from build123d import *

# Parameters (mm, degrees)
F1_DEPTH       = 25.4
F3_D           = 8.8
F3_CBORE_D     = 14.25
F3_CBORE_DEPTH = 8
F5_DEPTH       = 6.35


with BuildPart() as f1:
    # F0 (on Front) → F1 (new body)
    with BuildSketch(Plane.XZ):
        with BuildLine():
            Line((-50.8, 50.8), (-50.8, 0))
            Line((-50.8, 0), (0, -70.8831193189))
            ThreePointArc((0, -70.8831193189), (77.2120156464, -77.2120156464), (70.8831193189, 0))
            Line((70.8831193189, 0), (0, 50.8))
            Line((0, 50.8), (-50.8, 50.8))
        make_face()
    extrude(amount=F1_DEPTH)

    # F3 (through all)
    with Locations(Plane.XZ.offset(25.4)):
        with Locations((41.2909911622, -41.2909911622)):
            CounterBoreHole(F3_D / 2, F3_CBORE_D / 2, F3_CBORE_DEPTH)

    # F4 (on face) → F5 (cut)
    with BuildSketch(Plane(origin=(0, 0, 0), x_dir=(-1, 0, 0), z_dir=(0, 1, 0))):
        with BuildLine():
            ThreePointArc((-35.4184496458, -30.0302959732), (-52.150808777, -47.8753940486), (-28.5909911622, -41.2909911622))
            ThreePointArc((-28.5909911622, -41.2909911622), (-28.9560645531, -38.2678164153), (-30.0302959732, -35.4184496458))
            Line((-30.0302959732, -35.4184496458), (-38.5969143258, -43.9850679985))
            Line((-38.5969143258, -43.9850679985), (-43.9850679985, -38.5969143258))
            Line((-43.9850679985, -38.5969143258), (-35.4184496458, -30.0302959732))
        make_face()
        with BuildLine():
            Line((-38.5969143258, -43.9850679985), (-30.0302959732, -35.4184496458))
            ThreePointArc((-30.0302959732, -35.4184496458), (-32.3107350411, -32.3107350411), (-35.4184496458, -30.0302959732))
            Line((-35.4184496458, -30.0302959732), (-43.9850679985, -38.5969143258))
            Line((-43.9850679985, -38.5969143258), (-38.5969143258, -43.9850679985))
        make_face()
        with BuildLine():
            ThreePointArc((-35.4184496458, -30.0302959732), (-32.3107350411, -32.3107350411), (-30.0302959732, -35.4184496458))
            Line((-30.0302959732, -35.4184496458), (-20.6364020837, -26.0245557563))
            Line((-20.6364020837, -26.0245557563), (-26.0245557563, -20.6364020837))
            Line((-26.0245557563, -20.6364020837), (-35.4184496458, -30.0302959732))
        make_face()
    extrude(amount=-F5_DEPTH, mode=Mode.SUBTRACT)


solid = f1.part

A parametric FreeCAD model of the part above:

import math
import FreeCAD as App
import Part
import Sketcher
Q = App.Units.Quantity

doc = App.newDocument("Part")
params = doc.addObject("Spreadsheet::Sheet", "Params")
for row, (alias, value) in enumerate([
    ("sketch1_radius", "2 in"),
    ("sketch1_width", "2 in"),
    ("pad1_length", "1 in"),
    ("hole_diameter", "8.8 mm"),
    ("hole_cbore_diameter", "14.25 mm"),
    ("hole_cbore_depth", "8 mm"),
    ("sketch3_radius", "0.5 in"),
    ("sketch3_length", "0.3 in"),
    ("pocket1_length", "0.25 in"),
], start=1):
    params.set(f"A{row}", alias)
    params.set(f"B{row}", "=" + value)
    params.setAlias(f"B{row}", alias)

body = doc.addObject("PartDesign::Body", "Body")

# Sketch on XZ plane
sketch1 = body.newObject("Sketcher::SketchObject", "Sketch")
sketch1.AttachmentSupport = (doc.getObject("XZ_Plane"), [""])
sketch1.MapMode = "FlatFace"
sketch1.addGeometry([
    Part.LineSegment(App.Vector(-50.8, 50.8, 0), App.Vector(-50.8, 0, 0)),  # 0
    Part.LineSegment(App.Vector(-50.8, 0, 0), App.Vector(0, -70.883119, 0)),  # 1
    Part.ArcOfCircle(Part.Circle(App.Vector(41.290991, -41.290991, 0), App.Vector(0, 0, 1), 50.8), math.radians(-144.371862), math.radians(54.371862)),  # 2
    Part.LineSegment(App.Vector(70.883119, 0, 0), App.Vector(0, 50.8, 0)),  # 3
    Part.LineSegment(App.Vector(0, 50.8, 0), App.Vector(-50.8, 50.8, 0)),  # 4
], False)
sketch1.addConstraint([
    Sketcher.Constraint("Coincident", 0, 2, 1, 1),
    Sketcher.Constraint("Tangent", 1, 2, 2, 1),
    Sketcher.Constraint("Tangent", 2, 2, 3, 1),
    Sketcher.Constraint("Coincident", 3, 2, 4, 1),
    Sketcher.Constraint("Coincident", 4, 2, 0, 1),
    Sketcher.Constraint("Vertical", 0),
    Sketcher.Constraint("Horizontal", 4),
    Sketcher.Constraint("PointOnObject", 0, 2, -1),
    Sketcher.Constraint("PointOnObject", 1, 2, -2),
    Sketcher.Constraint("PointOnObject", 2, 2, -1),
    Sketcher.Constraint("PointOnObject", 3, 2, -2),
    Sketcher.Constraint("Equal", 4, 0),
    Sketcher.Constraint("Radius", 2, Q("2 in")),
    Sketcher.Constraint("DistanceX", 4, 2, 4, 1, Q("2 in")),
])
sketch1.setExpression("Constraints[12]", "Params.sketch1_radius")
sketch1.setExpression("Constraints[13]", "Params.sketch1_width")
pad1 = body.newObject("PartDesign::Pad", "Pad")
pad1.Profile = sketch1
pad1.setExpression("Length", "Params.pad1_length")

# Sketch on XZ plane
sketch2 = body.newObject("Sketcher::SketchObject", "Sketch001")
sketch2.AttachmentSupport = (doc.getObject("XZ_Plane"), [""])
sketch2.MapMode = "FlatFace"
sketch2.AttachmentOffset = App.Placement(App.Vector(0, 0, 1 * 25.4), App.Rotation())
sketch2.addGeometry(Part.Circle(App.Vector(41.290991, -41.290991, 0), App.Vector(0, 0, 1), 4.4), False)
sketch2.addConstraint([
    Sketcher.Constraint("Diameter", 0, 8.8),
    Sketcher.Constraint("DistanceX", -1, 1, 0, 3, 41.290991),
    Sketcher.Constraint("DistanceY", 0, 3, -1, 1, 41.290991),
])
doc.recompute()
hole = body.newObject("PartDesign::Hole", "Hole")
hole.Profile = sketch2
hole.ThreadType = "None"
hole.setExpression("Diameter", "Params.hole_diameter")
hole.DepthType = "ThroughAll"
hole.HoleCutType = "Counterbore"
hole.setExpression("HoleCutDiameter", "Params.hole_cbore_diameter")
hole.setExpression("HoleCutDepth", "Params.hole_cbore_depth")

# Sketch on XZ plane
sketch3 = body.newObject("Sketcher::SketchObject", "Sketch002")
sketch3.AttachmentSupport = (doc.getObject("XZ_Plane"), [""])
sketch3.MapMode = "FlatFace"
sketch3.addGeometry([
    Part.ArcOfCircle(Part.Circle(App.Vector(41.290991, -41.290991, 0), App.Vector(0, 0, 1), 12.7), math.radians(180), math.radians(477.542397)),  # 0
    Part.ArcOfCircle(Part.Circle(App.Vector(41.290991, -41.290991, 0), App.Vector(0, 0, 1), 12.7), math.radians(152.457603), math.radians(180)),  # 1
    Part.LineSegment(App.Vector(30.030296, -35.41845, 0), App.Vector(20.636402, -26.024556, 0)),  # 2
    Part.LineSegment(App.Vector(20.636402, -26.024556, 0), App.Vector(26.024556, -20.636402, 0)),  # 3
    Part.LineSegment(App.Vector(26.024556, -20.636402, 0), App.Vector(35.41845, -30.030296, 0)),  # 4
], False)
sketch3.addConstraint([
    Sketcher.Constraint("Tangent", 0, 1, 1, 2),
    Sketcher.Constraint("Coincident", 1, 1, 2, 1),
    Sketcher.Constraint("Coincident", 2, 2, 3, 1),
    Sketcher.Constraint("Coincident", 3, 2, 4, 1),
    Sketcher.Constraint("Coincident", 4, 2, 0, 2),
    Sketcher.Constraint("Equal", 0, 1),
    Sketcher.Constraint("Perpendicular", 2, 3),
    Sketcher.Constraint("Perpendicular", 3, 4),
    Sketcher.Constraint("Horizontal", 1, 3, 0, 1),
    Sketcher.Constraint("Equal", 2, 4),
    Sketcher.Constraint("Radius", 0, Q("0.5 in")),
    Sketcher.Constraint("Angle", 2, Q("135 deg")),
    Sketcher.Constraint("Distance", 3, Q("0.3 in")),
    Sketcher.Constraint("DistanceX", -1, 1, 0, 3, 41.290991),
    Sketcher.Constraint("DistanceY", 0, 3, -1, 1, 41.290991),
    Sketcher.Constraint("DistanceX", 2, 2, 0, 1, 7.954589),
])
sketch3.setExpression("Constraints[10]", "Params.sketch3_radius")
sketch3.setExpression("Constraints[12]", "Params.sketch3_length")
pocket1 = body.newObject("PartDesign::Pocket", "Pocket")
pocket1.Profile = sketch3
pocket1.setExpression("Length", "Params.pocket1_length")
pocket1.Reversed = True

doc.recompute()
